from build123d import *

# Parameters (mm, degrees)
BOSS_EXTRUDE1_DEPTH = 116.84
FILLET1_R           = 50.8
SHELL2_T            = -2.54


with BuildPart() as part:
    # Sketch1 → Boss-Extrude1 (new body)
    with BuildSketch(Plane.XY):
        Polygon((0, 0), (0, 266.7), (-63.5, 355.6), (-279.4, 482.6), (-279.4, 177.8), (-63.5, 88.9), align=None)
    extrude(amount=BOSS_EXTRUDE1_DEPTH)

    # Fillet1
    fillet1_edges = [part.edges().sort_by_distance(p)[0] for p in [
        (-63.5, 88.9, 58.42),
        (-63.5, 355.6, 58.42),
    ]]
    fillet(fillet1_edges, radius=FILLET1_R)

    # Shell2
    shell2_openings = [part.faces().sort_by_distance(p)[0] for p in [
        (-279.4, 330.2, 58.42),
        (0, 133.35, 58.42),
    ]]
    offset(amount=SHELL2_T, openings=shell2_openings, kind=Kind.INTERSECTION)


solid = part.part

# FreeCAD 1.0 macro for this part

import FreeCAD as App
import Part
import Sketcher
from FreeCAD import Vector
Q = App.Units.Quantity


def edges_at(feature, points):
    """Names of the edges that pass closest to the given points."""
    edges = feature.Shape.Edges
    near = lambda p: min(range(len(edges)), key=lambda i: edges[i].distToShape(Part.Vertex(*p))[0])
    return sorted({f"Edge{near(p) + 1}" for p in points})


def faces_at(feature, points):
    """Names of the faces that lie closest to the given points."""
    faces = feature.Shape.Faces
    near = lambda p: min(range(len(faces)), key=lambda i: faces[i].distToShape(Part.Vertex(*p))[0])
    return sorted({f"Face{near(p) + 1}" for p in points})

doc = App.newDocument("Part")
body = doc.addObject("PartDesign::Body", "Body")

sketch1 = doc.addObject("Sketcher::SketchObject", "Sketch")
body.addObject(sketch1)
sketch1.AttachmentSupport = (doc.XY_Plane, [""])
sketch1.MapMode = "FlatFace"
sketch1.addGeometry(Part.LineSegment(Vector(0, 0, 0), Vector(0, 267, 0)), False)
sketch1.addGeometry(Part.LineSegment(Vector(0, 267, 0), Vector(-64, 356, 0)), False)
sketch1.addGeometry(Part.LineSegment(Vector(-64, 356, 0), Vector(-279, 483, 0)), False)
sketch1.addGeometry(Part.LineSegment(Vector(-279, 483, 0), Vector(-279, 178, 0)), False)
sketch1.addGeometry(Part.LineSegment(Vector(-279, 178, 0), Vector(-64, 89, 0)), False)
sketch1.addGeometry(Part.LineSegment(Vector(-64, 89, 0), Vector(0, 0, 0)), False)
sketch1.addConstraint(Sketcher.Constraint("Coincident", 0, 2, 1, 1))
sketch1.addConstraint(Sketcher.Constraint("Coincident", 1, 2, 2, 1))
sketch1.addConstraint(Sketcher.Constraint("Coincident", 2, 2, 3, 1))
sketch1.addConstraint(Sketcher.Constraint("Coincident", 3, 2, 4, 1))
sketch1.addConstraint(Sketcher.Constraint("Coincident", 4, 2, 5, 1))
sketch1.addConstraint(Sketcher.Constraint("Coincident", 5, 2, 0, 1))
sketch1.addConstraint(Sketcher.Constraint("Vertical", 0))
sketch1.addConstraint(Sketcher.Constraint("Vertical", 3))
sketch1.addConstraint(Sketcher.Constraint("Coincident", 5, 2, -1, 1))
sketch1.addConstraint(Sketcher.Constraint("Parallel", 1, 5))
sketch1.addConstraint(Sketcher.Constraint("Vertical", 1, 2, 4, 2))
sketch1.addConstraint(Sketcher.Constraint("DistanceY", 3, 2, 3, 1, Q("12 in")))
sketch1.addConstraint(Sketcher.Constraint("DistanceY", 0, 1, 0, 2, Q("10.5 in")))
sketch1.addConstraint(Sketcher.Constraint("DistanceY", -1, 1, 1, 2, Q("14 in")))
sketch1.addConstraint(Sketcher.Constraint("DistanceX", 2, 2, -1, 1, Q("11 in")))
sketch1.addConstraint(Sketcher.Constraint("DistanceY", -1, 1, 2, 2, Q("19 in")))
sketch1.addConstraint(Sketcher.Constraint("DistanceX", 1, 2, -1, 1, Q("2.5 in")))
pad1 = doc.addObject("PartDesign::Pad", "Pad")
body.addObject(pad1)
pad1.Profile = sketch1
pad1.Length = Q("4.6 in")
doc.recompute()

fillet = doc.addObject("PartDesign::Fillet", "Fillet")
body.addObject(fillet)
fillet.Base = (pad1, edges_at(pad1, [(-63.5, 88.9, 58.42), (-63.5, 355.6, 58.42)]))
fillet.Radius = Q("2 in")
doc.recompute()

thickness = doc.addObject("PartDesign::Thickness", "Thickness")
body.addObject(thickness)
thickness.Base = (fillet, faces_at(fillet, [(-279.4, 330.2, 58.42), (0, 133.35, 58.42)]))
thickness.Value = Q("0.1 in")
thickness.Reversed = True
thickness.Join = "Intersection"

doc.recompute()
